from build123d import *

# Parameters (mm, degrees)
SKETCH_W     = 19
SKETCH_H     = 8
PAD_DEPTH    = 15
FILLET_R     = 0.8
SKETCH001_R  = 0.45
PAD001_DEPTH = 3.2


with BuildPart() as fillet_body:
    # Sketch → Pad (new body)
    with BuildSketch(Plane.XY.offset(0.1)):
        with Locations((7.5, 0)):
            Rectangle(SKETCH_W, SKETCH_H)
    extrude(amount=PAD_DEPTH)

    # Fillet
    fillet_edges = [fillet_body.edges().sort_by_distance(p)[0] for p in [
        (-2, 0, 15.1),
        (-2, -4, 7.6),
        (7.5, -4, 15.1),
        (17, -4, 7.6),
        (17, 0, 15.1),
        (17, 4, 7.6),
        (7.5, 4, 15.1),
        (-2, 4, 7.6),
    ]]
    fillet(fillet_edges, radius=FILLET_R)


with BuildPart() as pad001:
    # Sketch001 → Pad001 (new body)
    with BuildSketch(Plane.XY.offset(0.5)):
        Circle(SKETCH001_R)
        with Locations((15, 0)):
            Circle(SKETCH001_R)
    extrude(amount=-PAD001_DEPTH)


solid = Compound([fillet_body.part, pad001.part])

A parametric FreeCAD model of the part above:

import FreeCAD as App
import Part
import Sketcher


def edges_at(feature, points):
    """Names of the edges that pass closest to the given points."""
    edges = feature.Shape.Edges
    near = lambda p: min(range(len(edges)), key=lambda i: edges[i].distToShape(Part.Vertex(*p))[0])
    return sorted({f"Edge{near(p) + 1}" for p in points})


def add_polygon(sketch, points):
    """Adds a closed chain of lines whose ends are joined by coincident constraints."""
    first, n = sketch.GeometryCount, len(points)
    for a, b in zip(points, points[1:] + points[:1]):
        sketch.addGeometry(Part.LineSegment(App.Vector(*a, 0), App.Vector(*b, 0)), False)
    for i in range(n):
        sketch.addConstraint(Sketcher.Constraint("Coincident", first + i, 2, first + (i + 1) % n, 1))

doc = App.newDocument("Part")
body = doc.addObject("PartDesign::Body", "Body")

sketch1 = body.newObject("Sketcher::SketchObject", "Sketch")
sketch1.AttachmentSupport = (doc.getObject("XY_Plane"), [""])
sketch1.MapMode = "FlatFace"
sketch1.AttachmentOffset = App.Placement(App.Vector(0, 0, 0.1), App.Rotation())
add_polygon(sketch1, [(-2, 4), (-2, -4), (17, -4), (17, 4)])
sketch1.addConstraint([
    Sketcher.Constraint("Vertical", 0),
    Sketcher.Constraint("Horizontal", 1),
    Sketcher.Constraint("Vertical", 2),
    Sketcher.Constraint("Horizontal", 3),
    Sketcher.Constraint("DistanceX", 1, 1, 1, 2, 19.0),
    Sketcher.Constraint("DistanceY", 0, 2, 0, 1, 8.0),
    Sketcher.Constraint("DistanceX", 0, 2, -1, 1, 2.0),
    Sketcher.Constraint("DistanceY", 0, 2, -1, 1, 4.0),
])
pad1 = body.newObject("PartDesign::Pad", "Pad")
pad1.Profile = sketch1
pad1.Length = 15
doc.recompute()

fillet = body.newObject("PartDesign::Fillet", "Fillet")
fillet.Base = (pad1, edges_at(pad1, [
    (-2, 0, 15.1),
    (-2, -4, 7.6),
    (7.5, -4, 15.1),
    (17, -4, 7.6),
    (17, 0, 15.1),
    (17, 4, 7.6),
    (7.5, 4, 15.1),
    (-2, 4, 7.6),
]))
fillet.Radius = 0.8
body2 = doc.addObject("PartDesign::Body", "Body001")
body2.AllowCompound = True

sketch2 = body2.newObject("Sketcher::SketchObject", "Sketch001")
sketch2.AttachmentSupport = (doc.getObject("XY_Plane001"), [""])
sketch2.MapMode = "FlatFace"
sketch2.AttachmentOffset = App.Placement(App.Vector(0, 0, 0.5), App.Rotation())
sketch2.addGeometry([
    Part.Circle(App.Vector(0, 0, 0), App.Vector(0, 0, 1), 0.45),
    Part.Circle(App.Vector(15, 0, 0), App.Vector(0, 0, 1), 0.45),
], False)
sketch2.addConstraint([
    Sketcher.Constraint("Coincident", 0, 3, -1, 1),
    Sketcher.Constraint("Equal", 0, 1),
    Sketcher.Constraint("PointOnObject", 1, 3, -1),
    Sketcher.Constraint("Diameter", 0, 0.9),
    Sketcher.Constraint("DistanceX", -1, 1, 1, 3, 15.0),
])
pad2 = body2.newObject("PartDesign::Pad", "Pad001")
pad2.Profile = sketch2
pad2.Length = 3.2
pad2.Reversed = True

doc.recompute()
